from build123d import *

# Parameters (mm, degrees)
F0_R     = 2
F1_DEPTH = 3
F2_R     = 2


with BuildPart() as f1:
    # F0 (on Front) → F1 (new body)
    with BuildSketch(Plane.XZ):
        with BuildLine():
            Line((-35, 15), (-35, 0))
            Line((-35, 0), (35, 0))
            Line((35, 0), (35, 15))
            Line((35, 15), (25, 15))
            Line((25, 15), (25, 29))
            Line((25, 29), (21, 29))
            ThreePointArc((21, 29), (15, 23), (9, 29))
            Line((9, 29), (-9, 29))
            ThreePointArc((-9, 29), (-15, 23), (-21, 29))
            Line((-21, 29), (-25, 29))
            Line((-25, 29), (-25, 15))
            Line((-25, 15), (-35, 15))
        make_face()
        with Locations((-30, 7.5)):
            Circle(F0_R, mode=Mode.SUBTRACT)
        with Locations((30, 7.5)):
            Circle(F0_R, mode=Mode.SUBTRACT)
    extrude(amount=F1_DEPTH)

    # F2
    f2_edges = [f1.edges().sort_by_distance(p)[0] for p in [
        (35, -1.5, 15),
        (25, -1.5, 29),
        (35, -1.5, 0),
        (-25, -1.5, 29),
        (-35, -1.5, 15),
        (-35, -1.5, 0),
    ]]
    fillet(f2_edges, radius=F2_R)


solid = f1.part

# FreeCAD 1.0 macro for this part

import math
import FreeCAD as App
import Part
import Sketcher
from FreeCAD import Vector


def edges_at(feature, points):
    """Names of the edges that pass closest to the given points."""
    edges = feature.Shape.Edges
    near = lambda p: min(range(len(edges)), key=lambda i: edges[i].distToShape(Part.Vertex(*p))[0])
    return sorted({f"Edge{near(p) + 1}" for p in points})

doc = App.newDocument("Part")
body = doc.addObject("PartDesign::Body", "Body")

# Sketch on XZ plane
sketch1 = body.newObject("Sketcher::SketchObject", "Sketch")
sketch1.AttachmentSupport = (doc.getObject("XZ_Plane"), [""])
sketch1.MapMode = "FlatFace"
sketch1.addGeometry([
    Part.LineSegment(Vector(-35, 15, 0), Vector(-35, 0, 0)),  # 0
    Part.LineSegment(Vector(-35, 0, 0), Vector(35, 0, 0)),  # 1
    Part.LineSegment(Vector(35, 0, 0), Vector(35, 15, 0)),  # 2
    Part.LineSegment(Vector(35, 15, 0), Vector(25, 15, 0)),  # 3
    Part.LineSegment(Vector(25, 15, 0), Vector(25, 29, 0)),  # 4
    Part.LineSegment(Vector(25, 29, 0), Vector(21, 29, 0)),  # 5
    Part.ArcOfCircle(Part.Circle(Vector(15, 29, 0), Vector(0, 0, 1), 6), math.radians(180), math.radians(360)),  # 6
    Part.LineSegment(Vector(9, 29, 0), Vector(-9, 29, 0)),  # 7
    Part.ArcOfCircle(Part.Circle(Vector(-15, 29, 0), Vector(0, 0, 1), 6), math.radians(180), math.radians(360)),  # 8
    Part.LineSegment(Vector(-21, 29, 0), Vector(-25, 29, 0)),  # 9
    Part.LineSegment(Vector(-25, 29, 0), Vector(-25, 15, 0)),  # 10
    Part.LineSegment(Vector(-25, 15, 0), Vector(-35, 15, 0)),  # 11
    Part.Circle(Vector(-30, 7.5, 0), Vector(0, 0, 1), 2),  # 12
    Part.Circle(Vector(30, 7.5, 0), Vector(0, 0, 1), 2),  # 13
], False)
sketch1.addConstraint([
    Sketcher.Constraint("Coincident", 0, 2, 1, 1),
    Sketcher.Constraint("Coincident", 1, 2, 2, 1),
    Sketcher.Constraint("Coincident", 2, 2, 3, 1),
    Sketcher.Constraint("Coincident", 3, 2, 4, 1),
    Sketcher.Constraint("Coincident", 4, 2, 5, 1),
    Sketcher.Constraint("Coincident", 5, 2, 6, 2),
    Sketcher.Constraint("Coincident", 6, 1, 7, 1),
    Sketcher.Constraint("Coincident", 7, 2, 8, 2),
    Sketcher.Constraint("Coincident", 8, 1, 9, 1),
    Sketcher.Constraint("Coincident", 9, 2, 10, 1),
    Sketcher.Constraint("Coincident", 10, 2, 11, 1),
    Sketcher.Constraint("Coincident", 11, 2, 0, 1),
    Sketcher.Constraint("Vertical", 0),
    Sketcher.Constraint("Horizontal", 1),
    Sketcher.Constraint("Vertical", 2),
    Sketcher.Constraint("Horizontal", 3),
    Sketcher.Constraint("Vertical", 4),
    Sketcher.Constraint("Horizontal", 5),
    Sketcher.Constraint("Horizontal", 7),
    Sketcher.Constraint("Horizontal", 9),
    Sketcher.Constraint("Vertical", 10),
    Sketcher.Constraint("Horizontal", 11),
    Sketcher.Constraint("Equal", 6, 8),
    Sketcher.Constraint("Equal", 12, 13),
    Sketcher.Constraint("Symmetric", 0, 2, 1, 2, -1, 1),
    Sketcher.Constraint("Symmetric", 6, 3, 8, 3, -2),
    Sketcher.Constraint("Symmetric", 12, 3, 13, 3, -2),
    Sketcher.Constraint("Symmetric", 4, 2, 9, 2, -2),
    Sketcher.Constraint("Horizontal", 8, 3, 4, 2),
    Sketcher.Constraint("Horizontal", 5, 2, 6, 1),
    Sketcher.Constraint("Horizontal", 3, 2, 10, 2),
    Sketcher.Constraint("Diameter", 12, 4.0),
    Sketcher.Constraint("Radius", 6, 6.0),
    Sketcher.Constraint("DistanceX", 1, 1, 1, 2, 70.0),
    Sketcher.Constraint("DistanceX", 3, 2, 3, 1, 10.0),
    Sketcher.Constraint("DistanceX", 5, 2, 5, 1, 4.0),
    Sketcher.Constraint("DistanceY", 0, 2, 0, 1, 15.0),
    Sketcher.Constraint("DistanceY", 4, 1, 4, 2, 14.0),
    Sketcher.Constraint("DistanceX", 12, 3, -1, 1, 30.0),
    Sketcher.Constraint("DistanceY", -1, 1, 12, 3, 7.5),
])
pad1 = body.newObject("PartDesign::Pad", "Pad")
pad1.Profile = sketch1
pad1.Length = 3
doc.recompute()

fillet = body.newObject("PartDesign::Fillet", "Fillet")
fillet.Base = (pad1, edges_at(pad1, [
    (35, -1.5, 15),
    (25, -1.5, 29),
    (35, -1.5, 0),
    (-25, -1.5, 29),
    (-35, -1.5, 15),
    (-35, -1.5, 0),
]))
fillet.Radius = 2

doc.recompute()
